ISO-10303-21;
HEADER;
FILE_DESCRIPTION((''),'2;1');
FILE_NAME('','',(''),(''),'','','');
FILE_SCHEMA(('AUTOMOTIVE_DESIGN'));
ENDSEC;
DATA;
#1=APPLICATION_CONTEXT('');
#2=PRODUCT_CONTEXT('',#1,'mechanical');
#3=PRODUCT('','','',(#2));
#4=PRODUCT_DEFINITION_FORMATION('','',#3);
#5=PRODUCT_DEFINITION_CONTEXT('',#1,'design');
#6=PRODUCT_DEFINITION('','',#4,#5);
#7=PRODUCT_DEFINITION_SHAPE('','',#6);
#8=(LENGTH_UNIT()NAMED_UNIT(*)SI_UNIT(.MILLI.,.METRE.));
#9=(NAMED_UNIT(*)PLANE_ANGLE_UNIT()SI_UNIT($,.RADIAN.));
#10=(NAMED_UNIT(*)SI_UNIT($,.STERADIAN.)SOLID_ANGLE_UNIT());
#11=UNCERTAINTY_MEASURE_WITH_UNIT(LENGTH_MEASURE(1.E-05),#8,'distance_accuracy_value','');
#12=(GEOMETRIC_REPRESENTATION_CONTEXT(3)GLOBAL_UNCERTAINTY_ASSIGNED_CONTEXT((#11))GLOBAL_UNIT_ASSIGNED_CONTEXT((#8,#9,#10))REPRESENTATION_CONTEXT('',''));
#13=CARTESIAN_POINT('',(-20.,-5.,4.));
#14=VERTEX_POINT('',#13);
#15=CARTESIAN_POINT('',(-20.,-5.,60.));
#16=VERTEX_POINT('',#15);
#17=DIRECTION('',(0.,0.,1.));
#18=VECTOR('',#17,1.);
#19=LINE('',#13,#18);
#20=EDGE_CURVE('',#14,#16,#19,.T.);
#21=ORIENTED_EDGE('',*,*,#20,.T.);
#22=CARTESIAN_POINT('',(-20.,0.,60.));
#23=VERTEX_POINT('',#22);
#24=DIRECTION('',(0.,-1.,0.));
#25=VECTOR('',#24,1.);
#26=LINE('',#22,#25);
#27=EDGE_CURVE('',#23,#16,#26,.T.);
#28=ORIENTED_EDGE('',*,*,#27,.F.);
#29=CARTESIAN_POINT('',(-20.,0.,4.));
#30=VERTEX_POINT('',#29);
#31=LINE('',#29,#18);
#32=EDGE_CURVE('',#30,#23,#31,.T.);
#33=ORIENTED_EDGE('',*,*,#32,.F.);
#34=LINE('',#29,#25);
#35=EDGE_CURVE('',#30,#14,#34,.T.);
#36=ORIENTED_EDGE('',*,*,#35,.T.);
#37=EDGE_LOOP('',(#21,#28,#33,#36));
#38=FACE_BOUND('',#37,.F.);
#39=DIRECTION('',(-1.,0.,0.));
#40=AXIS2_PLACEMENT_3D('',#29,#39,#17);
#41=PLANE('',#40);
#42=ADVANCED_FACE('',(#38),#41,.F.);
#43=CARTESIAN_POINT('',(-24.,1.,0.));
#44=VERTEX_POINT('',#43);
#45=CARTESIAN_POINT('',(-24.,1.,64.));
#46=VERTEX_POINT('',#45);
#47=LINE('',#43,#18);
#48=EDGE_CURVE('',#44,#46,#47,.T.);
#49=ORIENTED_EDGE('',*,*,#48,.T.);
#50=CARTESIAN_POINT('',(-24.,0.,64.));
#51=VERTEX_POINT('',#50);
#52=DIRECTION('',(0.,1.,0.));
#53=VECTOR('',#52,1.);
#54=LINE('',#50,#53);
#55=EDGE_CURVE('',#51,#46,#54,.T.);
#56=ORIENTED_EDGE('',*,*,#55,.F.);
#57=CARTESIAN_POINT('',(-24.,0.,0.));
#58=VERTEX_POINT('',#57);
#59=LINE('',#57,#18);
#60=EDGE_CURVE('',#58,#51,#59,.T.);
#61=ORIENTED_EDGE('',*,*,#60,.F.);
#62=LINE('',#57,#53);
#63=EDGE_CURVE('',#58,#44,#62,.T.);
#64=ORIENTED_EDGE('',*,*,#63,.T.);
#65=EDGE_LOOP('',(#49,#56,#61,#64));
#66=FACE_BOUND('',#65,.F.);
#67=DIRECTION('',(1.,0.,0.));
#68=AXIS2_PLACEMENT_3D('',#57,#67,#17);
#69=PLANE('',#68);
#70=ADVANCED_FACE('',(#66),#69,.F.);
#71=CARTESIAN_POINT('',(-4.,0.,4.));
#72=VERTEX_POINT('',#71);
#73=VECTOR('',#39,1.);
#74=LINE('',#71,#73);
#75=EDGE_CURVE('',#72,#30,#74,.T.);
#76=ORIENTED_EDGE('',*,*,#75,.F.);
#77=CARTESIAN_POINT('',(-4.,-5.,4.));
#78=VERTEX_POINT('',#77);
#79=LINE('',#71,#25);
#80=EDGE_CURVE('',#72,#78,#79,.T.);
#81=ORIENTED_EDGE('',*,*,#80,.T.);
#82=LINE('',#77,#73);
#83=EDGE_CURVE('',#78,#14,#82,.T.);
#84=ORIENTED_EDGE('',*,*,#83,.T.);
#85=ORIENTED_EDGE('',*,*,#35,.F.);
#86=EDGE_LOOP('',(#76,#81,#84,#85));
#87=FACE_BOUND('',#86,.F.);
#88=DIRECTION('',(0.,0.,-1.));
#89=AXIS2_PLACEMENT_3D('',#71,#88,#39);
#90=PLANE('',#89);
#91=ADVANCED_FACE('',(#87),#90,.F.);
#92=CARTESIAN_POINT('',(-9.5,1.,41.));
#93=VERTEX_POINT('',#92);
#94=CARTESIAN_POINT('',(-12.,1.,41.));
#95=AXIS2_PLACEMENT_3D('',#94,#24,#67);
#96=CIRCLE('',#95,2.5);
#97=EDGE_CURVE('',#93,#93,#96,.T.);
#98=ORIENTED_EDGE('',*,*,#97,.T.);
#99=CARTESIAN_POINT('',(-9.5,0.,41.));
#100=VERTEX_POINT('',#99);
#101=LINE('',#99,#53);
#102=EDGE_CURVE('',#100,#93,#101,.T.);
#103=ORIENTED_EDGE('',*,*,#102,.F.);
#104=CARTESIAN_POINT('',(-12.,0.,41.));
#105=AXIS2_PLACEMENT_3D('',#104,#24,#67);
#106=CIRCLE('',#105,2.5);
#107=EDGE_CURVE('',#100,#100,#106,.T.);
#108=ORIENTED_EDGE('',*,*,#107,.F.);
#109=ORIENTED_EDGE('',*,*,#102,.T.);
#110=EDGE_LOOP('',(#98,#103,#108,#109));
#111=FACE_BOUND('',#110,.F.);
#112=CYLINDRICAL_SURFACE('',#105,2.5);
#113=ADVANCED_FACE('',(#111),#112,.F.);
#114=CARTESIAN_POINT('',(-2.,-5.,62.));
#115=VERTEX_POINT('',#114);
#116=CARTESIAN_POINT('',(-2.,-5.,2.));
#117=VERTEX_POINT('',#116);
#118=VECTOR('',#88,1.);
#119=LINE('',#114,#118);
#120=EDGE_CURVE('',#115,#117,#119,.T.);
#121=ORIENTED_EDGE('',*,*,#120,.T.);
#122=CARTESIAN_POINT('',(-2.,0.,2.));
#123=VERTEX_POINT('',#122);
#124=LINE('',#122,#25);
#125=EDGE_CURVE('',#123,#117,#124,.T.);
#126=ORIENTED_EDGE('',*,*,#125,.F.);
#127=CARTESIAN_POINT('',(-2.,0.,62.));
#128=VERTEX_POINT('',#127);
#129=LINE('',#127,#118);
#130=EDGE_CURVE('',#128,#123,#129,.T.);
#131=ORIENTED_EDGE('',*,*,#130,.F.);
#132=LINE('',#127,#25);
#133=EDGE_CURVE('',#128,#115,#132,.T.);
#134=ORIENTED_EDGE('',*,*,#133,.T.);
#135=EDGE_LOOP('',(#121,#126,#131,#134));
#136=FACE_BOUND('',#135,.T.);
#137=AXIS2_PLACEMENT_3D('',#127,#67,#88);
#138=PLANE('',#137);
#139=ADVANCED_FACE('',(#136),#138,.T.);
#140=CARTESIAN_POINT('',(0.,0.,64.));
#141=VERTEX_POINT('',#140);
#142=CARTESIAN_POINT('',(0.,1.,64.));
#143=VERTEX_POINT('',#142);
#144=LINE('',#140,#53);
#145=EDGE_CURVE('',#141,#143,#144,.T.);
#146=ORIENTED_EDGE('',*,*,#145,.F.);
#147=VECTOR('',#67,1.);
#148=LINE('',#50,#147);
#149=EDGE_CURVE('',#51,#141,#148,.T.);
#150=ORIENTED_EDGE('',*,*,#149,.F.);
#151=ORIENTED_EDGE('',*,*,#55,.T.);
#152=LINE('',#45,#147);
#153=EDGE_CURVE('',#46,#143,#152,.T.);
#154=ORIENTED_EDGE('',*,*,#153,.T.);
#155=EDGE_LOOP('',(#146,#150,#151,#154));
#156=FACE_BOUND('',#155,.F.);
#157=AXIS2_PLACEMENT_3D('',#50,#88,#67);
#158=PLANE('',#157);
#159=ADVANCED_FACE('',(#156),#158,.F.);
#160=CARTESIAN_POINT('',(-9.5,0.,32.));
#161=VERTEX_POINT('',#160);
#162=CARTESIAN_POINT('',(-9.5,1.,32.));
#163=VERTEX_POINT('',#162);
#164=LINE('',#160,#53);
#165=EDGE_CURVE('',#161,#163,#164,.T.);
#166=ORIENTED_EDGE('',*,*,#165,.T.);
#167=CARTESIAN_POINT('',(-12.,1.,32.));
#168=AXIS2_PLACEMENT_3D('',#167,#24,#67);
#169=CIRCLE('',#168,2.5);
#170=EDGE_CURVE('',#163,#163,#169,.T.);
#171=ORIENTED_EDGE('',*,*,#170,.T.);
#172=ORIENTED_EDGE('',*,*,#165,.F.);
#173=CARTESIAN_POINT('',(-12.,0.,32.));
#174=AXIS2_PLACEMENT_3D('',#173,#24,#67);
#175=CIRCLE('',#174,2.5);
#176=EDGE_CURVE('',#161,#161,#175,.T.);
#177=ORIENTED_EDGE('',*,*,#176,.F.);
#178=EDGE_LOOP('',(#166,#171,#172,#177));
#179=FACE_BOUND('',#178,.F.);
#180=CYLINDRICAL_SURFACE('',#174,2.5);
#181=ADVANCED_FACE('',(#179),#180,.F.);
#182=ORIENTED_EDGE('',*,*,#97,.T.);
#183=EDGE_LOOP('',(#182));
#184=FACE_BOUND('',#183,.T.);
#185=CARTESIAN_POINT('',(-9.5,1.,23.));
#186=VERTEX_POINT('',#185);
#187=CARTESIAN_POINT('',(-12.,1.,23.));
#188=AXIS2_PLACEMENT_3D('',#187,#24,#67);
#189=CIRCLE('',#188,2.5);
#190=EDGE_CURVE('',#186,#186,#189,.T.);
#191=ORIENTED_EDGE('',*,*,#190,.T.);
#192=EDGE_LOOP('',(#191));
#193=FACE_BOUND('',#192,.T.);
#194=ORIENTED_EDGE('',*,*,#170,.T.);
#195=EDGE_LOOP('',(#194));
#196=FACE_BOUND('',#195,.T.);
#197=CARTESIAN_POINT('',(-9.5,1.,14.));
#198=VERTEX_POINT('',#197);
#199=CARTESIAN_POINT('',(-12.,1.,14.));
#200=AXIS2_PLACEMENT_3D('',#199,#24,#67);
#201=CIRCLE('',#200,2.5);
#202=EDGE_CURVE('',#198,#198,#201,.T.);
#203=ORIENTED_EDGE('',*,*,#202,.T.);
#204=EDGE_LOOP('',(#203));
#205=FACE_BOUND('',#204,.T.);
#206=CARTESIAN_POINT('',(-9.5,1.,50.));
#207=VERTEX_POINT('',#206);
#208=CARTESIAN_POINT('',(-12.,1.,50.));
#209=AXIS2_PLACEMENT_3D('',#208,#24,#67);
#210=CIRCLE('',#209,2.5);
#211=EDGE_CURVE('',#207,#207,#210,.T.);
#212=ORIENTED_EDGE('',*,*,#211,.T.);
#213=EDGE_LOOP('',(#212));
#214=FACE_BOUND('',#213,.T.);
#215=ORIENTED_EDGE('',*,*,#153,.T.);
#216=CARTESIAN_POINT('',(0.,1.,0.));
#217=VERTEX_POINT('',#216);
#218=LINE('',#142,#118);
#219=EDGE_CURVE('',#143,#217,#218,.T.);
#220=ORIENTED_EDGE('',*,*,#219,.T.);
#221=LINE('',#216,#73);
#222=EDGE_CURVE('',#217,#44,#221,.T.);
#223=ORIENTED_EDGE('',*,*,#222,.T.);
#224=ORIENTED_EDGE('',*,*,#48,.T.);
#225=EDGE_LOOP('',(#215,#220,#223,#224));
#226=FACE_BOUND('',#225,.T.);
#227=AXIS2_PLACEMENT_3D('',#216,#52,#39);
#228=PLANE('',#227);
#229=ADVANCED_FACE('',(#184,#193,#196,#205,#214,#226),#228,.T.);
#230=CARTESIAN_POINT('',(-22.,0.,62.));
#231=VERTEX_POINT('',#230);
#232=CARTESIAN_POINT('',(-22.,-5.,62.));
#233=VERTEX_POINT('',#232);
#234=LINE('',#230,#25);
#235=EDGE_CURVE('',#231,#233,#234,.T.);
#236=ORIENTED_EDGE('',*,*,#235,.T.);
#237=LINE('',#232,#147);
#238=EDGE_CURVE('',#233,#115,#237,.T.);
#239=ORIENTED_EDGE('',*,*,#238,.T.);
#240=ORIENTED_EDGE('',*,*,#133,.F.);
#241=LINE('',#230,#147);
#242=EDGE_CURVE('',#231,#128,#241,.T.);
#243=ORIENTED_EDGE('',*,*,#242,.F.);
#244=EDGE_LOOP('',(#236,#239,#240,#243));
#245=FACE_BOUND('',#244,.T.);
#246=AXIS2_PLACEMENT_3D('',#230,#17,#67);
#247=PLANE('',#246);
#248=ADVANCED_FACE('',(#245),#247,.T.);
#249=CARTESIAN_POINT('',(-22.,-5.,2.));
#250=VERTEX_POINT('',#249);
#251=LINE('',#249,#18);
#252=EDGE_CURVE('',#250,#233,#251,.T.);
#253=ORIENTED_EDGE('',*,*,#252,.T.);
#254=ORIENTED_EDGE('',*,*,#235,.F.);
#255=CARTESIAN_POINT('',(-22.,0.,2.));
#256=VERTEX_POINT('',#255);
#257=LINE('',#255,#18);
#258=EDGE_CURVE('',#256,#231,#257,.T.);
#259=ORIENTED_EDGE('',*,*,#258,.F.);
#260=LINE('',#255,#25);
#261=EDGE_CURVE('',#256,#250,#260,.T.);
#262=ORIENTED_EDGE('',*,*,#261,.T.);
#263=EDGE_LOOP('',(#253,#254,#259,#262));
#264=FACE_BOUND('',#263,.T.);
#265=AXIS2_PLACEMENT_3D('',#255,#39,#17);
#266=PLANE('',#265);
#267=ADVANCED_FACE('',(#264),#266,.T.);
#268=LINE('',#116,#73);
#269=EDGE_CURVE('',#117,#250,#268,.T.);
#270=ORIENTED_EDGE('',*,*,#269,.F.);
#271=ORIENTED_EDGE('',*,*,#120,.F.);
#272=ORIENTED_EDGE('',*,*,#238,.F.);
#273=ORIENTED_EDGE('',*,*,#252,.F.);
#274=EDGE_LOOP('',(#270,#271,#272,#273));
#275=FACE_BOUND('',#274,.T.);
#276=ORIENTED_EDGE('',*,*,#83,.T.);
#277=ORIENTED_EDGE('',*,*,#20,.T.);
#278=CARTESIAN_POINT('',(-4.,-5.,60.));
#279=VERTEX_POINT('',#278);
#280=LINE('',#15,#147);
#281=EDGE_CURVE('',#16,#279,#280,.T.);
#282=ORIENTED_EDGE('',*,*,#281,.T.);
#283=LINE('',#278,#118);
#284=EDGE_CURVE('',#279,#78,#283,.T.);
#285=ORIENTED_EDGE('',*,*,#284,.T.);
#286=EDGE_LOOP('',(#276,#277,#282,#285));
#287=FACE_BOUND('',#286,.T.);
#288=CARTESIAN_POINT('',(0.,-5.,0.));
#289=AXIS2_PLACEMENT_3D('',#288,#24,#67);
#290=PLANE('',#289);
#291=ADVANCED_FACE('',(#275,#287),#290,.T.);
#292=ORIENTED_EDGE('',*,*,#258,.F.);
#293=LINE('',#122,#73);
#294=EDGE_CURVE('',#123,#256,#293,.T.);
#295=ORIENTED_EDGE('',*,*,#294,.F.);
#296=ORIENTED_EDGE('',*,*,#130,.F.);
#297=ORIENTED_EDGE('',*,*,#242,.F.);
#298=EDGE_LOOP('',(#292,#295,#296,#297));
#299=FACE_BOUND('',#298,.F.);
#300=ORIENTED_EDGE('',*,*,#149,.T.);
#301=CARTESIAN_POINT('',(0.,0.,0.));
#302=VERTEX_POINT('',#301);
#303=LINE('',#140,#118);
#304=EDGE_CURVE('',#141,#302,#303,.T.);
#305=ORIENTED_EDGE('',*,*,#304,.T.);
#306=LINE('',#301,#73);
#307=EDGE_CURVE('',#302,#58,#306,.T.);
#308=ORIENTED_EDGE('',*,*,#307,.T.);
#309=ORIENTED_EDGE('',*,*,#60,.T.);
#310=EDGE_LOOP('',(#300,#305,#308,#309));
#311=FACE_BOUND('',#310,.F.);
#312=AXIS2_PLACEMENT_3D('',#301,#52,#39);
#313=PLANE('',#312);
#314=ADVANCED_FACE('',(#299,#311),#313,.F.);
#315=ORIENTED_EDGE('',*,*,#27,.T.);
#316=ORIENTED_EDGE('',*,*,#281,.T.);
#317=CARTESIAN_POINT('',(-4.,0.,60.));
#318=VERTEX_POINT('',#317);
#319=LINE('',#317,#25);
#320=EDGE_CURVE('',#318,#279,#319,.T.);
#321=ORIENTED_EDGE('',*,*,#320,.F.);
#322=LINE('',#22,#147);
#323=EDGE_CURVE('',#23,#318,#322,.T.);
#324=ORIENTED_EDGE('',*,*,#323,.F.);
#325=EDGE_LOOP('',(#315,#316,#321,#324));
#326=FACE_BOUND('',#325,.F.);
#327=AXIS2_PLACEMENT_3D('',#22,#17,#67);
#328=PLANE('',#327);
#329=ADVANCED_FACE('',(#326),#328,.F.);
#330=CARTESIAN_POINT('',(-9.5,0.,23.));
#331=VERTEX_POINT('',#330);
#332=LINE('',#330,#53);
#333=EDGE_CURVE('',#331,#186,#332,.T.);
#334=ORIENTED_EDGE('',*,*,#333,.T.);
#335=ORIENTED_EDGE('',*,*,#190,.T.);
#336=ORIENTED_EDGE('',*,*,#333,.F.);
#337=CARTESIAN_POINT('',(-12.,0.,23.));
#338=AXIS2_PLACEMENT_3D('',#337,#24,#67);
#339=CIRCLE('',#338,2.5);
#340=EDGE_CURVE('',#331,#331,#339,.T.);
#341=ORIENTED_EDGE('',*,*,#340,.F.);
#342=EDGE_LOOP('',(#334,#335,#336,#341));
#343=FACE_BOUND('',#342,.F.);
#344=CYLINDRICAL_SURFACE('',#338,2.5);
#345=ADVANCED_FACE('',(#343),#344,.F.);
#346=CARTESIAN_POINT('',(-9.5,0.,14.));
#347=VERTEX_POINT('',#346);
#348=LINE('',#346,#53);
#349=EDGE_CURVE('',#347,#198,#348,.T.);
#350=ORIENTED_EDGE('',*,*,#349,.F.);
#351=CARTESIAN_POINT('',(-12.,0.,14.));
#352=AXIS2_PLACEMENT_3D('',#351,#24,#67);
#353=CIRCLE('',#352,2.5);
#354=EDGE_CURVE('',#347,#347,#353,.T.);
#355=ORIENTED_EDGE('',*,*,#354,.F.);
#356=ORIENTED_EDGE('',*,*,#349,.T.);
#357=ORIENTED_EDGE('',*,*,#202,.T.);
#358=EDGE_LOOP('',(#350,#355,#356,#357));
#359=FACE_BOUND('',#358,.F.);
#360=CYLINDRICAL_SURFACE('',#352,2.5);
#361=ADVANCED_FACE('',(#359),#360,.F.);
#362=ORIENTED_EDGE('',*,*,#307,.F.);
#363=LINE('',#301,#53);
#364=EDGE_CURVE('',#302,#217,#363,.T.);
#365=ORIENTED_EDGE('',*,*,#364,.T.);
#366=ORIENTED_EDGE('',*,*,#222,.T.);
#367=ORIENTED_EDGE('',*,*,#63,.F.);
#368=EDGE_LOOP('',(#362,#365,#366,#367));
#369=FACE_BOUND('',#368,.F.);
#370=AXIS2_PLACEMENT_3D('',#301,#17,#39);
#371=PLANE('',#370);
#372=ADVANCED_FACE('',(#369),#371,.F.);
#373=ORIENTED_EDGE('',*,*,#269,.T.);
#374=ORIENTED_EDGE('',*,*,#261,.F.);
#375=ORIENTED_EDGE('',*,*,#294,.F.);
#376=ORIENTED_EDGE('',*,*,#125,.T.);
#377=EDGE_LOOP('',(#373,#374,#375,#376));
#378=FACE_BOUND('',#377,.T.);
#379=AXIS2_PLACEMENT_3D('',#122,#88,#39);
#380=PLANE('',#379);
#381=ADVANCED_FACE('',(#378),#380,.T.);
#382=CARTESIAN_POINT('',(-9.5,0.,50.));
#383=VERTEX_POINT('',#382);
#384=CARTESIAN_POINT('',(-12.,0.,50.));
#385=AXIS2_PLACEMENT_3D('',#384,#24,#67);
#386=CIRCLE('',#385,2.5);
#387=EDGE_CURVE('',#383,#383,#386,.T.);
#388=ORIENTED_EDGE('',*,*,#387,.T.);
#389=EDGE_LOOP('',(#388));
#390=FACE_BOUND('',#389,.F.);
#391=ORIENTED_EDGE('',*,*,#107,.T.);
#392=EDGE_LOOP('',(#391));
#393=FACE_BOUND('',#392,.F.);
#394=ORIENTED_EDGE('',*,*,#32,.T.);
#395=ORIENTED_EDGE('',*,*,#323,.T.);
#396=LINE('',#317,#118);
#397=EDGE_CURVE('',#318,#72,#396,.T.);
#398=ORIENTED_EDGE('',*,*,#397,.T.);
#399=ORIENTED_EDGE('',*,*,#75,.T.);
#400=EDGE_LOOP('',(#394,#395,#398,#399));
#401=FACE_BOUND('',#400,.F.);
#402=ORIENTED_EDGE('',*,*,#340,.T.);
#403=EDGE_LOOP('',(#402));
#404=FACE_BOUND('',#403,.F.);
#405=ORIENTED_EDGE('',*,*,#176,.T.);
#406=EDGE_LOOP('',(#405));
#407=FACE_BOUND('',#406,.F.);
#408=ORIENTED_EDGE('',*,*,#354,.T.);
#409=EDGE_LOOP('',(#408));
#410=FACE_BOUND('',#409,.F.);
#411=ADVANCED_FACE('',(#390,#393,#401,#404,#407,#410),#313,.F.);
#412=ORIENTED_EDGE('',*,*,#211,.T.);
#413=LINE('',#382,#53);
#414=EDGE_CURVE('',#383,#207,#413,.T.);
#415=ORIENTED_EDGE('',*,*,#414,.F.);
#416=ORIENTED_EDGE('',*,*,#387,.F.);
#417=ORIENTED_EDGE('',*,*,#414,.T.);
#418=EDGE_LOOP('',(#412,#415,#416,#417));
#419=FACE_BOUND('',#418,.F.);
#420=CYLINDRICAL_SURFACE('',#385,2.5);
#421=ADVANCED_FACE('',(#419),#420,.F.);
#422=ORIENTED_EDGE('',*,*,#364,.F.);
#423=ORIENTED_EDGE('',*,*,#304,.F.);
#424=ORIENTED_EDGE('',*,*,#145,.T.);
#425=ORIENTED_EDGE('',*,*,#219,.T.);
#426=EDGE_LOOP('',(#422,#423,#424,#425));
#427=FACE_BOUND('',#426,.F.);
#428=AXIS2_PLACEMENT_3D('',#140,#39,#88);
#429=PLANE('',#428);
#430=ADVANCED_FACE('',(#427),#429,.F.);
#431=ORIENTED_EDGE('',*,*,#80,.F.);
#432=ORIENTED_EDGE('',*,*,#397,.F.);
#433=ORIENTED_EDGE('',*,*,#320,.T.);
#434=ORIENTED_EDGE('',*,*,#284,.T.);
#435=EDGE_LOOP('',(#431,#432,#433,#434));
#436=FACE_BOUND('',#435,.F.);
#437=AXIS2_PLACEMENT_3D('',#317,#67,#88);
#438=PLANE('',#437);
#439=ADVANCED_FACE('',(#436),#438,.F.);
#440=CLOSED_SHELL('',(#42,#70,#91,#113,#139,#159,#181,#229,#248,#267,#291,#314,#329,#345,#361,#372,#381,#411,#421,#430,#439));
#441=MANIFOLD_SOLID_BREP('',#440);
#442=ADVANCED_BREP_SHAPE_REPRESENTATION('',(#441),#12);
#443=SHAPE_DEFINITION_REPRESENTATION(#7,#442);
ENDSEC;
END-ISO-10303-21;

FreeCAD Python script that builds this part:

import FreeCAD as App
import Part
import Sketcher

doc = App.newDocument("Part")
body = doc.addObject("PartDesign::Body", "Body")

sketch1 = doc.addObject("Sketcher::SketchObject", "Sketch")
body.addObject(sketch1)
sketch1.AttachmentSupport = (doc.XZ_Plane, [""])
sketch1.MapMode = "FlatFace"
sketch1.addGeometry(Part.LineSegment(App.Vector(0, 64, 0), App.Vector(0, 0, 0)), False)
sketch1.addGeometry(Part.LineSegment(App.Vector(0, 0, 0), App.Vector(-24, 0, 0)), False)
sketch1.addGeometry(Part.LineSegment(App.Vector(-24, 0, 0), App.Vector(-24, 64, 0)), False)
sketch1.addGeometry(Part.LineSegment(App.Vector(-24, 64, 0), App.Vector(0, 64, 0)), False)
sketch1.addConstraint(Sketcher.Constraint("Coincident", 0, 2, 1, 1))
sketch1.addConstraint(Sketcher.Constraint("Coincident", 1, 2, 2, 1))
sketch1.addConstraint(Sketcher.Constraint("Coincident", 2, 2, 3, 1))
sketch1.addConstraint(Sketcher.Constraint("Coincident", 3, 2, 0, 1))
sketch1.addConstraint(Sketcher.Constraint("Vertical", 0))
sketch1.addConstraint(Sketcher.Constraint("Horizontal", 1))
sketch1.addConstraint(Sketcher.Constraint("Vertical", 2))
sketch1.addConstraint(Sketcher.Constraint("Horizontal", 3))
sketch1.addConstraint(Sketcher.Constraint("Coincident", 0, 2, -1, 1))
sketch1.addConstraint(Sketcher.Constraint("DistanceX", 1, 2, 1, 1, 24.0))
sketch1.addConstraint(Sketcher.Constraint("DistanceY", 0, 2, 0, 1, 64.0))
pad1 = doc.addObject("PartDesign::Pad", "Pad")
body.addObject(pad1)
pad1.Profile = sketch1
pad1.Length = 1
pad1.Reversed = True

sketch2 = doc.addObject("Sketcher::SketchObject", "Sketch001")
body.addObject(sketch2)
sketch2.AttachmentSupport = (doc.XZ_Plane, [""])
sketch2.MapMode = "FlatFace"
sketch2.addGeometry(Part.LineSegment(App.Vector(-22, 2, 0), App.Vector(-2, 2, 0)), False)
sketch2.addGeometry(Part.LineSegment(App.Vector(-2, 2, 0), App.Vector(-2, 62, 0)), False)
sketch2.addGeometry(Part.LineSegment(App.Vector(-2, 62, 0), App.Vector(-22, 62, 0)), False)
sketch2.addGeometry(Part.LineSegment(App.Vector(-22, 62, 0), App.Vector(-22, 2, 0)), False)
sketch2.addGeometry(Part.LineSegment(App.Vector(-4, 60, 0), App.Vector(-4, 4, 0)), False)
sketch2.addGeometry(Part.LineSegment(App.Vector(-4, 4, 0), App.Vector(-20, 4, 0)), False)
sketch2.addGeometry(Part.LineSegment(App.Vector(-20, 4, 0), App.Vector(-20, 60, 0)), False)
sketch2.addGeometry(Part.LineSegment(App.Vector(-20, 60, 0), App.Vector(-4, 60, 0)), False)
sketch2.addConstraint(Sketcher.Constraint("Coincident", 0, 2, 1, 1))
sketch2.addConstraint(Sketcher.Constraint("Coincident", 1, 2, 2, 1))
sketch2.addConstraint(Sketcher.Constraint("Coincident", 2, 2, 3, 1))
sketch2.addConstraint(Sketcher.Constraint("Coincident", 3, 2, 0, 1))
sketch2.addConstraint(Sketcher.Constraint("Coincident", 4, 2, 5, 1))
sketch2.addConstraint(Sketcher.Constraint("Coincident", 5, 2, 6, 1))
sketch2.addConstraint(Sketcher.Constraint("Coincident", 6, 2, 7, 1))
sketch2.addConstraint(Sketcher.Constraint("Coincident", 7, 2, 4, 1))
sketch2.addConstraint(Sketcher.Constraint("Horizontal", 0))
sketch2.addConstraint(Sketcher.Constraint("Vertical", 1))
sketch2.addConstraint(Sketcher.Constraint("Horizontal", 2))
sketch2.addConstraint(Sketcher.Constraint("Vertical", 3))
sketch2.addConstraint(Sketcher.Constraint("Vertical", 4))
sketch2.addConstraint(Sketcher.Constraint("Horizontal", 5))
sketch2.addConstraint(Sketcher.Constraint("Vertical", 6))
sketch2.addConstraint(Sketcher.Constraint("Horizontal", 7))
sketch2.addConstraint(Sketcher.Constraint("DistanceX", 0, 2, -1, 1, 2.0))
sketch2.addConstraint(Sketcher.Constraint("DistanceY", -1, 1, 0, 2, 2.0))
sketch2.addConstraint(Sketcher.Constraint("DistanceX", 4, 2, 0, 2, 2.0))
sketch2.addConstraint(Sketcher.Constraint("DistanceY", 0, 2, 4, 2, 2.0))
sketch2.addConstraint(Sketcher.Constraint("DistanceX", 3, 2, 5, 2, 2.0))
sketch2.addConstraint(Sketcher.Constraint("DistanceY", 6, 2, 2, 2, 2.0))
sketch2.addConstraint(Sketcher.Constraint("DistanceX", 0, 1, 0, 2, 20.0))
sketch2.addConstraint(Sketcher.Constraint("DistanceY", 1, 1, 1, 2, 60.0))
pad2 = doc.addObject("PartDesign::Pad", "Pad001")
body.addObject(pad2)
pad2.Profile = sketch2
pad2.Length = 5

sketch3 = doc.addObject("Sketcher::SketchObject", "Sketch002")
body.addObject(sketch3)
sketch3.AttachmentSupport = (doc.XZ_Plane, [""])
sketch3.MapMode = "FlatFace"
sketch3.addGeometry(Part.Circle(App.Vector(-12, 50, 0), App.Vector(0, 0, 1), 2.5), False)
sketch3.addGeometry(Part.Circle(App.Vector(-12, 41, 0), App.Vector(0, 0, 1), 2.5), False)
sketch3.addGeometry(Part.Circle(App.Vector(-12, 32, 0), App.Vector(0, 0, 1), 2.5), False)
sketch3.addGeometry(Part.Circle(App.Vector(-12, 23, 0), App.Vector(0, 0, 1), 2.5), False)
sketch3.addGeometry(Part.Circle(App.Vector(-12, 14, 0), App.Vector(0, 0, 1), 2.5), False)
sketch3.addConstraint(Sketcher.Constraint("Equal", 0, 1))
sketch3.addConstraint(Sketcher.Constraint("Equal", 1, 2))
sketch3.addConstraint(Sketcher.Constraint("Equal", 2, 3))
sketch3.addConstraint(Sketcher.Constraint("Equal", 3, 4))
sketch3.addConstraint(Sketcher.Constraint("Vertical", 0, 3, 1, 3))
sketch3.addConstraint(Sketcher.Constraint("Vertical", 1, 3, 2, 3))
sketch3.addConstraint(Sketcher.Constraint("Vertical", 2, 3, 3, 3))
sketch3.addConstraint(Sketcher.Constraint("Vertical", 3, 3, 4, 3))
sketch3.addConstraint(Sketcher.Constraint("Diameter", 0, 5.0))
sketch3.addConstraint(Sketcher.Constraint("DistanceY", 1, 3, 0, 3, 9.0))
sketch3.addConstraint(Sketcher.Constraint("DistanceY", 2, 3, 1, 3, 9.0))
sketch3.addConstraint(Sketcher.Constraint("DistanceY", 3, 3, 2, 3, 9.0))
sketch3.addConstraint(Sketcher.Constraint("DistanceY", 4, 3, 3, 3, 9.0))
sketch3.addConstraint(Sketcher.Constraint("DistanceX", 0, 3, -1, 1, 12.0))
sketch3.addConstraint(Sketcher.Constraint("DistanceY", -1, 1, 0, 3, 50.0))
pocket1 = doc.addObject("PartDesign::Pocket", "Pocket")
body.addObject(pocket1)
pocket1.Profile = sketch3
pocket1.Length = 2

doc.recompute()
